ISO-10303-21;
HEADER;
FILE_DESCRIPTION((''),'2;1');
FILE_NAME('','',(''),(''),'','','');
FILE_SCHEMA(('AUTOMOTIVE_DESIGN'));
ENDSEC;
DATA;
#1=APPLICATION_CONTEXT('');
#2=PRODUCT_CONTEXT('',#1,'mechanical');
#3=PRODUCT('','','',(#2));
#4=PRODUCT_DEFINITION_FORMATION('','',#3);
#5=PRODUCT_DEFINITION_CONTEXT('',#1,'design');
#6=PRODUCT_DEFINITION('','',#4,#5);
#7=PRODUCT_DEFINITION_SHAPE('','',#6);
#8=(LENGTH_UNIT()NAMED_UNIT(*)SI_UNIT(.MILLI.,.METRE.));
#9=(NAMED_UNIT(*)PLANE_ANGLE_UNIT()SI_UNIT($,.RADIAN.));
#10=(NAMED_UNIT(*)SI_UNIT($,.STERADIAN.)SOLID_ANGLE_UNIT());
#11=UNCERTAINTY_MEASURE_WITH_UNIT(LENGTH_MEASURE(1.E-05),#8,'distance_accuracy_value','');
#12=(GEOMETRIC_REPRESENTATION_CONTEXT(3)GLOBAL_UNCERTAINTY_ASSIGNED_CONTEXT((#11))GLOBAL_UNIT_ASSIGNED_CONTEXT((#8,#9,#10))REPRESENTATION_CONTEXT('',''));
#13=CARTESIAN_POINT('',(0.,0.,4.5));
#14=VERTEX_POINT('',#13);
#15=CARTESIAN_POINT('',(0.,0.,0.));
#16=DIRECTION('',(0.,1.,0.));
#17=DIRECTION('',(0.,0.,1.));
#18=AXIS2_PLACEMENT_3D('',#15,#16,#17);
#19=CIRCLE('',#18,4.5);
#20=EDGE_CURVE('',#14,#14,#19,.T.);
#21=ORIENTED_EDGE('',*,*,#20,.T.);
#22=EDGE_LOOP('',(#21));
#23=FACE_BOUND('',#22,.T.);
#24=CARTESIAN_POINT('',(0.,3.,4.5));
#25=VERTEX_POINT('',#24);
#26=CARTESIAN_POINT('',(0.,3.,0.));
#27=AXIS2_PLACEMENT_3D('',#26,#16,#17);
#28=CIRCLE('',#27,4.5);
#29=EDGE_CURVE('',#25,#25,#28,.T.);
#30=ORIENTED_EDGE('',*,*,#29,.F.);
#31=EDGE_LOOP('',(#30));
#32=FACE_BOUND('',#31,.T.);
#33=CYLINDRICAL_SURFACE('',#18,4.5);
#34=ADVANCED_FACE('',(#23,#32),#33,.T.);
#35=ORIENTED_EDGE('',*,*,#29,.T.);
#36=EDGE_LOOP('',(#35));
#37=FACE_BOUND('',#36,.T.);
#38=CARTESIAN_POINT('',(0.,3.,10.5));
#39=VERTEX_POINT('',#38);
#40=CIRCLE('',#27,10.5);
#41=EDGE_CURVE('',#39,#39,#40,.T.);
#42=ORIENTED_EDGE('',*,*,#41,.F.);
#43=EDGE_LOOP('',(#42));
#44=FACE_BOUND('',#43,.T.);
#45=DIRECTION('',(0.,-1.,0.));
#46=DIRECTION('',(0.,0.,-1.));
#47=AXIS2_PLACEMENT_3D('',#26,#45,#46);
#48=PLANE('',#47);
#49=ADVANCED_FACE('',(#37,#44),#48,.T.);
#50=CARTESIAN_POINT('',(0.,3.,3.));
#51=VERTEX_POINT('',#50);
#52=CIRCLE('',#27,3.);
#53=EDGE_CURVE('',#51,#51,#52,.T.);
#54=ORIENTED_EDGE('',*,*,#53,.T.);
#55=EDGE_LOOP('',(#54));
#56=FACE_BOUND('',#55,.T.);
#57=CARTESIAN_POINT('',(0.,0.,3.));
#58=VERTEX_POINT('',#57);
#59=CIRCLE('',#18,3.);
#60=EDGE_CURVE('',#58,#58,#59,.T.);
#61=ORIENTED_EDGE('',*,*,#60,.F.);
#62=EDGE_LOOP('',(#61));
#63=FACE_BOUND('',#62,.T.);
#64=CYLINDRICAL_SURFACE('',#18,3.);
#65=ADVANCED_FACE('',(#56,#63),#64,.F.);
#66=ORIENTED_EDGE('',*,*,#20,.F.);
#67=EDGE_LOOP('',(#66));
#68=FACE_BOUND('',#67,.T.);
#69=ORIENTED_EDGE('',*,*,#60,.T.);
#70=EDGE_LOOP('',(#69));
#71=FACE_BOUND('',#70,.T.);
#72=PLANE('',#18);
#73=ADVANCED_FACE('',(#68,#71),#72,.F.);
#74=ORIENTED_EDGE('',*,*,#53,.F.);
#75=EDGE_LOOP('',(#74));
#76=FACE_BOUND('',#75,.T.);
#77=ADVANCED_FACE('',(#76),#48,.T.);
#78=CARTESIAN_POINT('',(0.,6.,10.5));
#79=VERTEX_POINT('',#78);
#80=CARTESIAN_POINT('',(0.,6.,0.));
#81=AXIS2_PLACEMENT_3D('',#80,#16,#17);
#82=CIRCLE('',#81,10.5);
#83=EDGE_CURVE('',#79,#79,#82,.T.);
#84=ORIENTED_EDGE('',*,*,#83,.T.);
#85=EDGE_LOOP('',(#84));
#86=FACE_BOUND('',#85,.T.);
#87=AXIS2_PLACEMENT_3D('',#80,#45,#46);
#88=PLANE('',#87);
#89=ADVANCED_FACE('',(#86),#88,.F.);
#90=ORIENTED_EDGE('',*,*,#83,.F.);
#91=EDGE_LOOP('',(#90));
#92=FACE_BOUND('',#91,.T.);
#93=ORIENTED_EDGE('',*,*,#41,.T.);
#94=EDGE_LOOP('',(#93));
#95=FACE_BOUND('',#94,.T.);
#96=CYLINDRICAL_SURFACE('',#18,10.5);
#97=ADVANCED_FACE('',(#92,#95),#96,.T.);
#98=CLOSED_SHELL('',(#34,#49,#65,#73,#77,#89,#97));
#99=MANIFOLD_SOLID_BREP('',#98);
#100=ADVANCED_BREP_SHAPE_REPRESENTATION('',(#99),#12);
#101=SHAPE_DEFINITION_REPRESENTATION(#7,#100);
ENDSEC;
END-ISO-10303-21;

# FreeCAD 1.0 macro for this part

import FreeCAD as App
import Part
import Sketcher
Q = App.Units.Quantity

doc = App.newDocument("Part")
body = doc.addObject("PartDesign::Body", "Body")

# Sketch on YZ plane
sketch1 = body.newObject("Sketcher::SketchObject", "Sketch")
sketch1.AttachmentSupport = (doc.getObject("YZ_Plane"), [""])
sketch1.MapMode = "FlatFace"
sketch1.addGeometry(Part.LineSegment(App.Vector(6, -10.5, 0), App.Vector(6, 0, 0)), False)
sketch1.addGeometry(Part.LineSegment(App.Vector(6, 0, 0), App.Vector(3, 0, 0)), False)
sketch1.addGeometry(Part.LineSegment(App.Vector(3, 0, 0), App.Vector(3, -3, 0)), False)
sketch1.addGeometry(Part.LineSegment(App.Vector(3, -3, 0), App.Vector(0, -3, 0)), False)
sketch1.addGeometry(Part.LineSegment(App.Vector(0, -3, 0), App.Vector(0, -4.5, 0)), False)
sketch1.addGeometry(Part.LineSegment(App.Vector(0, -4.5, 0), App.Vector(3, -4.5, 0)), False)
sketch1.addGeometry(Part.LineSegment(App.Vector(3, -4.5, 0), App.Vector(3, -10.5, 0)), False)
sketch1.addGeometry(Part.LineSegment(App.Vector(3, -10.5, 0), App.Vector(6, -10.5, 0)), False)
sketch1.addConstraint(Sketcher.Constraint("Coincident", 0, 2, 1, 1))
sketch1.addConstraint(Sketcher.Constraint("Coincident", 1, 2, 2, 1))
sketch1.addConstraint(Sketcher.Constraint("Coincident", 2, 2, 3, 1))
sketch1.addConstraint(Sketcher.Constraint("Coincident", 3, 2, 4, 1))
sketch1.addConstraint(Sketcher.Constraint("Coincident", 4, 2, 5, 1))
sketch1.addConstraint(Sketcher.Constraint("Coincident", 5, 2, 6, 1))
sketch1.addConstraint(Sketcher.Constraint("Coincident", 6, 2, 7, 1))
sketch1.addConstraint(Sketcher.Constraint("Coincident", 7, 2, 0, 1))
sketch1.addConstraint(Sketcher.Constraint("Vertical", 0))
sketch1.addConstraint(Sketcher.Constraint("Horizontal", 1))
sketch1.addConstraint(Sketcher.Constraint("Vertical", 2))
sketch1.addConstraint(Sketcher.Constraint("Horizontal", 3))
sketch1.addConstraint(Sketcher.Constraint("Vertical", 4))
sketch1.addConstraint(Sketcher.Constraint("Horizontal", 5))
sketch1.addConstraint(Sketcher.Constraint("Vertical", 6))
sketch1.addConstraint(Sketcher.Constraint("Horizontal", 7))
sketch1.addConstraint(Sketcher.Constraint("PointOnObject", 0, 2, -1))
sketch1.addConstraint(Sketcher.Constraint("PointOnObject", 3, 2, -2))
sketch1.addConstraint(Sketcher.Constraint("Vertical", 2, 2, 5, 2))
sketch1.addConstraint(Sketcher.Constraint("Equal", 1, 3))
sketch1.addConstraint(Sketcher.Constraint("Equal", 7, 2))
sketch1.addConstraint(Sketcher.Constraint("DistanceX", 1, 2, 1, 1, Q("3 mm")))
sketch1.addConstraint(Sketcher.Constraint("DistanceY", 6, 2, 6, 1, Q("6 mm")))
sketch1.addConstraint(Sketcher.Constraint("DistanceY", 0, 1, 0, 2, Q("10.5 mm")))
revolution = body.newObject("PartDesign::Revolution", "Revolution")
revolution.Profile = sketch1
revolution.ReferenceAxis = (sketch1, ["H_Axis"])
revolution.Angle = 360

doc.recompute()
